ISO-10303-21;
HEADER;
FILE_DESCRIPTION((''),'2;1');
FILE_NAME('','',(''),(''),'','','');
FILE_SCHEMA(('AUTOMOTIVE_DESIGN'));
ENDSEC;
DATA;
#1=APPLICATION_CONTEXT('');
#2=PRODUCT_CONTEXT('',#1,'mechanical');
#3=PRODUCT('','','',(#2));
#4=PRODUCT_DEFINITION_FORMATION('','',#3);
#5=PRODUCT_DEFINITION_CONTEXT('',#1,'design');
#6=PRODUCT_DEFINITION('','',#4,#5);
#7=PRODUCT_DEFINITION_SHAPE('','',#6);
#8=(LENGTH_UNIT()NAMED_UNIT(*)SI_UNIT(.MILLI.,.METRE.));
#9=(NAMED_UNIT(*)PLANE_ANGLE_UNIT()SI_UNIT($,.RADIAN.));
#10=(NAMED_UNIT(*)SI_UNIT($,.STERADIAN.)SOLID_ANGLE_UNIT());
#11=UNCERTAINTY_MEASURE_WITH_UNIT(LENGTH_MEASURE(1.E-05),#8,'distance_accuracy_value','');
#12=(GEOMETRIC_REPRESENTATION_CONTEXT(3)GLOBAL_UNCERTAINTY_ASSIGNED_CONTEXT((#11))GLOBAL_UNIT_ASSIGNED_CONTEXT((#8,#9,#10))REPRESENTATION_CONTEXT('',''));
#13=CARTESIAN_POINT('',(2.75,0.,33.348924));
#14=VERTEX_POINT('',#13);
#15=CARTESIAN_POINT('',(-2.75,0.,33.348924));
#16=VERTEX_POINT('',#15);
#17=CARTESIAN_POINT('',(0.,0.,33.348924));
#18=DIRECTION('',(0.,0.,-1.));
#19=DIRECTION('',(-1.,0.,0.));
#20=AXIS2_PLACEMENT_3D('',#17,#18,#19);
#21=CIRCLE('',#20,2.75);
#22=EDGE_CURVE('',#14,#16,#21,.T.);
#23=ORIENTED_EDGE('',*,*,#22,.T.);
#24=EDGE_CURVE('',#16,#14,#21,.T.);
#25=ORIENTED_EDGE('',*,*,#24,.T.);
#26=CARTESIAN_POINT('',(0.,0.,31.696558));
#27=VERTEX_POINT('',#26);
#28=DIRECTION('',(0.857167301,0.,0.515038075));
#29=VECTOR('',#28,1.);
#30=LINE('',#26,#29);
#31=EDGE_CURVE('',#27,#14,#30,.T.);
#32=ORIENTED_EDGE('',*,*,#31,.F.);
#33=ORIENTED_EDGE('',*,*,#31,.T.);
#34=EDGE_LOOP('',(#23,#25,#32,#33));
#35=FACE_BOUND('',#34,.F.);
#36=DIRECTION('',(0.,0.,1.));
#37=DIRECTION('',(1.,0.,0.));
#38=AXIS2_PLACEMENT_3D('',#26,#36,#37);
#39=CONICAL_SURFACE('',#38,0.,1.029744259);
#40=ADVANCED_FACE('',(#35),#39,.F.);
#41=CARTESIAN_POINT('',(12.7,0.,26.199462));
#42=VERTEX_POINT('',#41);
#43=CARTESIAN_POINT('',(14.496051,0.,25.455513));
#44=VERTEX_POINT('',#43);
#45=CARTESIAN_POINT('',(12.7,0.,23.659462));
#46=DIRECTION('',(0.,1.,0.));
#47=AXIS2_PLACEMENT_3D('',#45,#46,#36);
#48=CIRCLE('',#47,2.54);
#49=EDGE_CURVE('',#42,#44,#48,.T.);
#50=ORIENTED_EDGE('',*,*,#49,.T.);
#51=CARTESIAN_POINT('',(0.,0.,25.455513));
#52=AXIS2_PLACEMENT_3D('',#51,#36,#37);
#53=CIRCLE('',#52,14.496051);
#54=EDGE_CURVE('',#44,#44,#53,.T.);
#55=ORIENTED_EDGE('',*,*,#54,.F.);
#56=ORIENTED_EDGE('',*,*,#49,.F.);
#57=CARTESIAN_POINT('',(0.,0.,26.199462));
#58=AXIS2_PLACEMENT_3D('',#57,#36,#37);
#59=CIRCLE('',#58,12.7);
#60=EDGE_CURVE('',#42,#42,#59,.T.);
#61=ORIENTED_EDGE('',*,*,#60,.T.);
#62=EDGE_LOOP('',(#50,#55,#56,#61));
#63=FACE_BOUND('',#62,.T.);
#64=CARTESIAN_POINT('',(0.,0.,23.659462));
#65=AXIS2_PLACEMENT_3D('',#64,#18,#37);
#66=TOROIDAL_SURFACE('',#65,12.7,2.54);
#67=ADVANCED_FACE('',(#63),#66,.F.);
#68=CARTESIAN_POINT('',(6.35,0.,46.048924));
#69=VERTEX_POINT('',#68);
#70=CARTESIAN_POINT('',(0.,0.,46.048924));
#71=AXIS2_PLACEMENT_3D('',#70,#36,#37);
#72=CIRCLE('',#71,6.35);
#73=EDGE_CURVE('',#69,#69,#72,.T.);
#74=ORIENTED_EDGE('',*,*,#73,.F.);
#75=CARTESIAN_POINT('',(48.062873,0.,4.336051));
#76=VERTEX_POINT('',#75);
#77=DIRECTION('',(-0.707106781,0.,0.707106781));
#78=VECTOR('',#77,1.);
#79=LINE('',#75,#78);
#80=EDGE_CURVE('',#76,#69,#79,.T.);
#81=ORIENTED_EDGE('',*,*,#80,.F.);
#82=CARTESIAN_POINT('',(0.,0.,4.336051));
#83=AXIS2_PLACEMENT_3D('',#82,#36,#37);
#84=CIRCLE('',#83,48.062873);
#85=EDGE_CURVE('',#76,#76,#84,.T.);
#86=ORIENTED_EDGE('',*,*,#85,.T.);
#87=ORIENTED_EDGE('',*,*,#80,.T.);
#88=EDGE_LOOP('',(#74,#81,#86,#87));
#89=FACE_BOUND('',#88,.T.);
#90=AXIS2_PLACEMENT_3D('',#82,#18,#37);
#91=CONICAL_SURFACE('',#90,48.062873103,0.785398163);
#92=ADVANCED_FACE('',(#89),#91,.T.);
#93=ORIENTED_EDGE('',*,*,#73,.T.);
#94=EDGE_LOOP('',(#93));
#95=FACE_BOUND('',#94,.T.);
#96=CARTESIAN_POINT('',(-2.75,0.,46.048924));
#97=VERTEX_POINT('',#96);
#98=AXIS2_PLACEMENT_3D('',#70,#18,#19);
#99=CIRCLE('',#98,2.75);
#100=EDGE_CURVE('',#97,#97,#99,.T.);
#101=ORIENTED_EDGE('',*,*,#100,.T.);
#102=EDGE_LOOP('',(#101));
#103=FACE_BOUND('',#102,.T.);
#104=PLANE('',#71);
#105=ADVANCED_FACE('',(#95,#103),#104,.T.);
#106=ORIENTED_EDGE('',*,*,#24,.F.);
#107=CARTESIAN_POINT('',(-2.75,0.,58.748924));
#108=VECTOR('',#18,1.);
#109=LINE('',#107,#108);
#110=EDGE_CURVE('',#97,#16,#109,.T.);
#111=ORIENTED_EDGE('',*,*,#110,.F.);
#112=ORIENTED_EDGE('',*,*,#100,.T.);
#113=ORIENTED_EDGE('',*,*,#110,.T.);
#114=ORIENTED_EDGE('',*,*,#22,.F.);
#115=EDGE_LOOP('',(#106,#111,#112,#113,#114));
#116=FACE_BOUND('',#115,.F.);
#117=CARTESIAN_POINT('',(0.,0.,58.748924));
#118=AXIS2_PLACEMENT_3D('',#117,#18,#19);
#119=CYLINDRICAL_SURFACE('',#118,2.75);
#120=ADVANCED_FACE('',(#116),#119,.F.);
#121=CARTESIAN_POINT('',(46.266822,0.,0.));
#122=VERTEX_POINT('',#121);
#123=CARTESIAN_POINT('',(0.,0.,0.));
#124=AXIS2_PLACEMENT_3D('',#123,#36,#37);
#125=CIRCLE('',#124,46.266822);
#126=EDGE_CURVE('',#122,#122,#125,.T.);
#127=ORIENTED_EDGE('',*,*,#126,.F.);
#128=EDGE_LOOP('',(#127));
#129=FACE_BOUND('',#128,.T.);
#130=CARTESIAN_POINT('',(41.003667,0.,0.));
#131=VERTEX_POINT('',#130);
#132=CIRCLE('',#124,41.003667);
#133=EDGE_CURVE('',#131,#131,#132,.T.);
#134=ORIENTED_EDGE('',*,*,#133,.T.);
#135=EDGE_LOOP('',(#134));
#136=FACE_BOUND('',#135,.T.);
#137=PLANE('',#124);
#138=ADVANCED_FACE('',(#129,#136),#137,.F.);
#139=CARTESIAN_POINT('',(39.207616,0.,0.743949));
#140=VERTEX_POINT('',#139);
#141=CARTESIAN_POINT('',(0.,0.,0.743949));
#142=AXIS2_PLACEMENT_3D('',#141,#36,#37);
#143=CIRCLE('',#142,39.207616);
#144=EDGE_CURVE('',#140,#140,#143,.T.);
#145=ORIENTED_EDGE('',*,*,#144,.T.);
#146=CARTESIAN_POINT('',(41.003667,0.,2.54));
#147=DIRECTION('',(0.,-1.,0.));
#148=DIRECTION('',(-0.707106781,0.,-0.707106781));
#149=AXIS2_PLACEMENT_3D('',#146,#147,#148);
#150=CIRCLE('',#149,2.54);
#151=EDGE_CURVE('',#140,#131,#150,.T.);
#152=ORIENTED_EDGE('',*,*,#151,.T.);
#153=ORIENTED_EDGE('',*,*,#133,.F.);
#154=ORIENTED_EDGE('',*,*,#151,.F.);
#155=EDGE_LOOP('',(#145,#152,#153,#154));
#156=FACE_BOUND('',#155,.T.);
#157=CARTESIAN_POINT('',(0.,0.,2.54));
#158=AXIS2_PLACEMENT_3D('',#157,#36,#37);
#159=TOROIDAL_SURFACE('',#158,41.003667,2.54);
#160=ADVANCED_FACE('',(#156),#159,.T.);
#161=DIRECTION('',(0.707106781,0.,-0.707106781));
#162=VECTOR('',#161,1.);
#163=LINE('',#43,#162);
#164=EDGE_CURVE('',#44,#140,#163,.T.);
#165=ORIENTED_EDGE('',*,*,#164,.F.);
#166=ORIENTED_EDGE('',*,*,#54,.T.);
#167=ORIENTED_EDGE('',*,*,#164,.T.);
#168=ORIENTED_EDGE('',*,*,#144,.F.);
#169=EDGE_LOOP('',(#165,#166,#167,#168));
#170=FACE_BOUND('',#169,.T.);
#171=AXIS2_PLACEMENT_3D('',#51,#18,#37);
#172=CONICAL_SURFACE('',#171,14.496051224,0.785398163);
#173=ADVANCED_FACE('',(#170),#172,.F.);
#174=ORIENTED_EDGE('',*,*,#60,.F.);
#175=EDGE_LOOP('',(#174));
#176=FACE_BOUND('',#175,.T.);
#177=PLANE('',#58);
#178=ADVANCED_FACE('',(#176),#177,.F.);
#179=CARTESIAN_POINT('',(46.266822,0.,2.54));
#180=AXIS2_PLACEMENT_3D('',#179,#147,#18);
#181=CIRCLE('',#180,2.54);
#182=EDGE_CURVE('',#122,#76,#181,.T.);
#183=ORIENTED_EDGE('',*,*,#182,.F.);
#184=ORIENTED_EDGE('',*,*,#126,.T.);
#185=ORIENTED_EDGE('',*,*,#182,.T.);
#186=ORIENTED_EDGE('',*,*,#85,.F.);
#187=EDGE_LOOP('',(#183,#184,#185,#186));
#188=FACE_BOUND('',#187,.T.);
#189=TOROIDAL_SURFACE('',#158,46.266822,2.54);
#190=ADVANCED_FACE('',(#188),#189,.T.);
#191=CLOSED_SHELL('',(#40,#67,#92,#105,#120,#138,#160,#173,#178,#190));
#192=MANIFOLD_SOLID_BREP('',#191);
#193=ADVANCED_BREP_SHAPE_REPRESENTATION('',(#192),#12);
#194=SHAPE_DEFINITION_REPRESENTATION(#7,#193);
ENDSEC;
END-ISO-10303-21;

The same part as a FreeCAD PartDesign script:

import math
import FreeCAD as App
import Part
import Sketcher
from FreeCAD import Vector
Q = App.Units.Quantity

doc = App.newDocument("Part")
body = doc.addObject("PartDesign::Body", "Body")

# Sketch on XZ plane
sketch1 = body.newObject("Sketcher::SketchObject", "Sketch")
sketch1.AttachmentSupport = (doc.getObject("XZ_Plane"), [""])
sketch1.MapMode = "FlatFace"
sketch1.addGeometry([
    Part.LineSegment(Vector(0, 46, 0), Vector(0, 26.2, 0)),  # 0
    Part.LineSegment(Vector(0, 26.2, 0), Vector(12.7, 26.2, 0)),  # 1
    Part.ArcOfCircle(Part.Circle(Vector(12.7, 23.7, 0), Vector(0, 0, 1), 2.5), math.radians(45), math.radians(90)),  # 2
    Part.LineSegment(Vector(14.5, 25.5, 0), Vector(39.2, 0.7, 0)),  # 3
    Part.ArcOfCircle(Part.Circle(Vector(41, 2.5, 0), Vector(0, 0, 1), 2.5), math.radians(-135), math.radians(-90)),  # 4
    Part.LineSegment(Vector(41, 0, 0), Vector(46.3, 0, 0)),  # 5
    Part.ArcOfCircle(Part.Circle(Vector(46.3, 2.5, 0), Vector(0, 0, 1), 2.5), math.radians(-90), math.radians(45)),  # 6
    Part.LineSegment(Vector(48.1, 4.3, 0), Vector(6.3, 46, 0)),  # 7
    Part.LineSegment(Vector(6.3, 46, 0), Vector(0, 46, 0)),  # 8
], False)
sketch1.addConstraint([
    Sketcher.Constraint("Coincident", 0, 2, 1, 1),
    Sketcher.Constraint("Tangent", 1, 2, 2, 2),
    Sketcher.Constraint("Tangent", 2, 1, 3, 1),
    Sketcher.Constraint("Tangent", 3, 2, 4, 1),
    Sketcher.Constraint("Tangent", 4, 2, 5, 1),
    Sketcher.Constraint("Tangent", 5, 2, 6, 1),
    Sketcher.Constraint("Tangent", 6, 2, 7, 1),
    Sketcher.Constraint("Coincident", 7, 2, 8, 1),
    Sketcher.Constraint("Coincident", 8, 2, 0, 1),
    Sketcher.Constraint("Vertical", 0),
    Sketcher.Constraint("Horizontal", 1),
    Sketcher.Constraint("Horizontal", 5),
    Sketcher.Constraint("Horizontal", 8),
    Sketcher.Constraint("Equal", 2, 4),
    Sketcher.Constraint("Equal", 4, 6),
    Sketcher.Constraint("PointOnObject", 0, 2, -2),
    Sketcher.Constraint("PointOnObject", 4, 2, -1),
    Sketcher.Constraint("Parallel", 3, 7),
    Sketcher.Constraint("Radius", 2, Q("0.1 in")),
    Sketcher.Constraint("DistanceX", 1, 1, 1, 2, Q("0.5 in")),
    Sketcher.Constraint("Angle", 3, Q("-45 deg")),
    Sketcher.Constraint("DistanceX", 8, 2, 8, 1, Q("0.25 in")),
    Sketcher.Constraint("Distance", 3, 34.94743),
    Sketcher.Constraint("Distance", 7, 58.990911),
])
revolution = body.newObject("PartDesign::Revolution", "Revolution")
revolution.Profile = sketch1
revolution.ReferenceAxis = (sketch1, ["V_Axis"])
revolution.Angle = 360

# Sketch on XY plane
sketch2 = body.newObject("Sketcher::SketchObject", "Sketch001")
sketch2.AttachmentSupport = (doc.getObject("XY_Plane"), [""])
sketch2.MapMode = "FlatFace"
sketch2.AttachmentOffset = App.Placement(Vector(0, 0, 46.048924), App.Rotation())
sketch2.addGeometry(Part.Circle(Vector(0, 0, 0), Vector(0, 0, 1), 2.8), False)
sketch2.addConstraint([
    Sketcher.Constraint("Coincident", 0, 3, -1, 1),
    Sketcher.Constraint("Diameter", 0, 5.5),
])
doc.recompute()
hole = body.newObject("PartDesign::Hole", "Hole")
hole.Profile = sketch2
hole.ThreadType = "None"
hole.Diameter = 5.5
hole.DepthType = "Dimension"
hole.Depth = Q("0.5 in")
hole.DrillPoint = "Angled"
hole.DrillPointAngle = 118

doc.recompute()
